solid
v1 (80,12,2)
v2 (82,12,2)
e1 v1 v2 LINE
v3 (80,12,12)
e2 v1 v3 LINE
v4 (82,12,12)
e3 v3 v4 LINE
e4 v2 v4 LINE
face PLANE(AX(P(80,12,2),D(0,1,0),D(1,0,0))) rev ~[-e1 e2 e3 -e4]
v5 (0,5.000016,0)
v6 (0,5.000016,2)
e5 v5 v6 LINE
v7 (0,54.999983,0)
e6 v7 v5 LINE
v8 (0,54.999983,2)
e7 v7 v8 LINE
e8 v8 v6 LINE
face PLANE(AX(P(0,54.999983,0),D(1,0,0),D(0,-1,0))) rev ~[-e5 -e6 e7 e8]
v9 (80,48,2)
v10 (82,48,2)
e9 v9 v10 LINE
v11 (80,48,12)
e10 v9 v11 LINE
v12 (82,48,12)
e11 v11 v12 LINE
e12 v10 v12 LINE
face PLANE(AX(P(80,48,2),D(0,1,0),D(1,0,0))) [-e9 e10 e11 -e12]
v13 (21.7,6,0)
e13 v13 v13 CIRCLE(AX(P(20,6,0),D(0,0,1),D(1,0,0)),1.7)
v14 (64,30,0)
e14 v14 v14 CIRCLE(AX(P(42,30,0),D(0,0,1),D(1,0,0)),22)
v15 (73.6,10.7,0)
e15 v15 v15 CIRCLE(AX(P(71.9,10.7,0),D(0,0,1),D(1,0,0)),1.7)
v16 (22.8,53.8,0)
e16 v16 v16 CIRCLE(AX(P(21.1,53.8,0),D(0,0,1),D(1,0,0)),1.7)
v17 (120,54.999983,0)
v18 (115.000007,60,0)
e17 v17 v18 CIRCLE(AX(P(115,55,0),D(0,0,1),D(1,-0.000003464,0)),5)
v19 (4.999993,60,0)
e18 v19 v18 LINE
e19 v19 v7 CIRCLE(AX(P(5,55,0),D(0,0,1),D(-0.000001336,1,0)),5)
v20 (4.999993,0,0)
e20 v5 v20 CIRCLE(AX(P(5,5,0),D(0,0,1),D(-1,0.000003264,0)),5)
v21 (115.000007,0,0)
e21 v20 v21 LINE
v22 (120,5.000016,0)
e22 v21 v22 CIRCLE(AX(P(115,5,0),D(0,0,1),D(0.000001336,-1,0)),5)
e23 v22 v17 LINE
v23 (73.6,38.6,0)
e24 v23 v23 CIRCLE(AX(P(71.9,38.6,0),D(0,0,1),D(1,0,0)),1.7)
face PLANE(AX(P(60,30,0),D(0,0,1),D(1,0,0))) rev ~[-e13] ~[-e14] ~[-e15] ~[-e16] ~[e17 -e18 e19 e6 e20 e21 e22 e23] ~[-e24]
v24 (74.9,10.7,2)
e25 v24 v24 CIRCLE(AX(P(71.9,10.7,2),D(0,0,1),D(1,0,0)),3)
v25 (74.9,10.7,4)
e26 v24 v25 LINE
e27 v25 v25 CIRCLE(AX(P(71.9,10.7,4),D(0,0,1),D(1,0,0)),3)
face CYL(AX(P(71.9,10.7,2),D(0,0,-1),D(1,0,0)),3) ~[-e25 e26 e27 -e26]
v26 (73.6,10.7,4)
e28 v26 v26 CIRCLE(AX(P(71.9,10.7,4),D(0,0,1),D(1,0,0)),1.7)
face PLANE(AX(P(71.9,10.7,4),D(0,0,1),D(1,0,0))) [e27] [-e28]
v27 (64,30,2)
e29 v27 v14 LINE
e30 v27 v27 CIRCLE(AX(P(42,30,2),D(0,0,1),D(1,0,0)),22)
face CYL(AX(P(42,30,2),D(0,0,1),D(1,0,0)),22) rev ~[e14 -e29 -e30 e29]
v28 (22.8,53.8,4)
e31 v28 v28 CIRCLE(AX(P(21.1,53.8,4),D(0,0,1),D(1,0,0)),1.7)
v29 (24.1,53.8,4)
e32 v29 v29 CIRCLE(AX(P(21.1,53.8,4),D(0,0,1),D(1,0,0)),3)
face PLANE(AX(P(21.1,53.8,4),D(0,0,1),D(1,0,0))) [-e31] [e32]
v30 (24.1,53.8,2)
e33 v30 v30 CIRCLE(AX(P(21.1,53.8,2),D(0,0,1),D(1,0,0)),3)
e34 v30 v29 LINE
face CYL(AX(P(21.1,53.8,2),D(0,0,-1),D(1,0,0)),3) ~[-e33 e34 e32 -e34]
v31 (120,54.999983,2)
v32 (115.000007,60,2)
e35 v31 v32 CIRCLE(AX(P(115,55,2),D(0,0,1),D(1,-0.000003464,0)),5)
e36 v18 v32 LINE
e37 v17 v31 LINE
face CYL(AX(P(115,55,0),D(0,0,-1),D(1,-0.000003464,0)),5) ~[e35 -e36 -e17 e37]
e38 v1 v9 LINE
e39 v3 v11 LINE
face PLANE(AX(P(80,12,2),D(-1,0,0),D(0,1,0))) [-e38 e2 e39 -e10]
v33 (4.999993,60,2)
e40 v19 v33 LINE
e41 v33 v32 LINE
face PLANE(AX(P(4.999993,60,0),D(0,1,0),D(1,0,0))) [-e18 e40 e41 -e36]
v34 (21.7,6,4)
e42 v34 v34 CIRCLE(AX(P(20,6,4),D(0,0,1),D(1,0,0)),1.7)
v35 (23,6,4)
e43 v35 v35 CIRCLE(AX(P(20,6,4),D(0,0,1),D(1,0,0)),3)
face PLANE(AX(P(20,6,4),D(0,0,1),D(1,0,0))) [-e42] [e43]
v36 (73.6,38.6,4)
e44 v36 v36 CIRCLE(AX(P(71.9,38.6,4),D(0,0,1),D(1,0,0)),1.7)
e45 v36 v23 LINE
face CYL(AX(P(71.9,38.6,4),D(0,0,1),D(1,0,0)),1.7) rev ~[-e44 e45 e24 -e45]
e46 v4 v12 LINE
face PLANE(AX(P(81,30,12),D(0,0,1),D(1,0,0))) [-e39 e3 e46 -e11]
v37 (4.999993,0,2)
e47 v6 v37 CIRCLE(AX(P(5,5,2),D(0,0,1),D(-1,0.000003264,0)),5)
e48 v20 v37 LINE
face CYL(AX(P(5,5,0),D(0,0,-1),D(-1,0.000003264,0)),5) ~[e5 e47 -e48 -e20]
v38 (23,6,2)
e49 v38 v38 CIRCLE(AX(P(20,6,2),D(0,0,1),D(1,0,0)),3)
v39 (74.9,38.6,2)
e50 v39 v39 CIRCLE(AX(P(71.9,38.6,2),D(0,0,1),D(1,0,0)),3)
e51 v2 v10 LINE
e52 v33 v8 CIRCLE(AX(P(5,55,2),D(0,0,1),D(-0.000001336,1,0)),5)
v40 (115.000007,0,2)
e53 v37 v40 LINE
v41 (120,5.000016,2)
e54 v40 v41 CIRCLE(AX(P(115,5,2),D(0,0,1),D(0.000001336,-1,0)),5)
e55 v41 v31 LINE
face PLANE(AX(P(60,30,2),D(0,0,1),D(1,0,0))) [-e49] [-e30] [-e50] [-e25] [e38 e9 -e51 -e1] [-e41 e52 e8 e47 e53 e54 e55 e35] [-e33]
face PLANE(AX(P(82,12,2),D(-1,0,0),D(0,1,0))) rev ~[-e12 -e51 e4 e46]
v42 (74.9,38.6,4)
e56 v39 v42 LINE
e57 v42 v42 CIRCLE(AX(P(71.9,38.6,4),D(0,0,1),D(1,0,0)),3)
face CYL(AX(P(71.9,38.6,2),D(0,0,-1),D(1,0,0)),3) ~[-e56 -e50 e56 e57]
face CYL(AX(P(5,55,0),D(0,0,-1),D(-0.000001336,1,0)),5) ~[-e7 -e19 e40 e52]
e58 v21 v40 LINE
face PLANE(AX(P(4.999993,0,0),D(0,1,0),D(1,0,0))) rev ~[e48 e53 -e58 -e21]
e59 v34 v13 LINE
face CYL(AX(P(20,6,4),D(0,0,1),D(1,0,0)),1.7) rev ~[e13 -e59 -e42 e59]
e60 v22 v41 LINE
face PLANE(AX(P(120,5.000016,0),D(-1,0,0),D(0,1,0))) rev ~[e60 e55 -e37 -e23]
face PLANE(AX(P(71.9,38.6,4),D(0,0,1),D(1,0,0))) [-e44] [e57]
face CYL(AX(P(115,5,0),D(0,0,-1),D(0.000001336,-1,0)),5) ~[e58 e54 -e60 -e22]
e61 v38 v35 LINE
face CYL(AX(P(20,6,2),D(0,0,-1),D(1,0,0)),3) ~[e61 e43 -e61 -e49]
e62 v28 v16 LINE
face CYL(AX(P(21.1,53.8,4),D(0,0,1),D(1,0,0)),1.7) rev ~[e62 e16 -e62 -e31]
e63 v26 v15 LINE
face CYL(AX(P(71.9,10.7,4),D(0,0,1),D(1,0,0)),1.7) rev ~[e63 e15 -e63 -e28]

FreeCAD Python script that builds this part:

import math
import FreeCAD as App
import Part
import Sketcher
from FreeCAD import Vector


def add_polygon(sketch, points):
    """Adds a closed chain of lines whose ends are joined by coincident constraints."""
    first, n = sketch.GeometryCount, len(points)
    for a, b in zip(points, points[1:] + points[:1]):
        sketch.addGeometry(Part.LineSegment(App.Vector(*a, 0), App.Vector(*b, 0)), False)
    for i in range(n):
        sketch.addConstraint(Sketcher.Constraint("Coincident", first + i, 2, first + (i + 1) % n, 1))

doc = App.newDocument("Part")
body = doc.addObject("PartDesign::Body", "Body")

sketch1 = doc.addObject("Sketcher::SketchObject", "Sketch")
body.addObject(sketch1)
sketch1.AttachmentSupport = (doc.XY_Plane, [""])
sketch1.MapMode = "FlatFace"
sketch1.addGeometry(Part.LineSegment(Vector(5, 0, 0), Vector(115, 0, 0)), False)
sketch1.addGeometry(Part.ArcOfCircle(Part.Circle(Vector(115, 5, 0), Vector(0, 0, 1), 5), math.radians(-90), math.radians(0)), False)
sketch1.addGeometry(Part.LineSegment(Vector(120, 5, 0), Vector(120, 55, 0)), False)
sketch1.addGeometry(Part.ArcOfCircle(Part.Circle(Vector(115, 55, 0), Vector(0, 0, 1), 5), math.radians(0), math.radians(90)), False)
sketch1.addGeometry(Part.LineSegment(Vector(115, 60, 0), Vector(5, 60, 0)), False)
sketch1.addGeometry(Part.ArcOfCircle(Part.Circle(Vector(5, 55, 0), Vector(0, 0, 1), 5), math.radians(90), math.radians(180)), False)
sketch1.addGeometry(Part.LineSegment(Vector(0, 55, 0), Vector(0, 5, 0)), False)
sketch1.addGeometry(Part.ArcOfCircle(Part.Circle(Vector(5, 5, 0), Vector(0, 0, 1), 5), math.radians(180), math.radians(270)), False)
sketch1.addConstraint(Sketcher.Constraint("Tangent", 0, 2, 1, 1))
sketch1.addConstraint(Sketcher.Constraint("Coincident", 1, 2, 2, 1))
sketch1.addConstraint(Sketcher.Constraint("Coincident", 2, 2, 3, 1))
sketch1.addConstraint(Sketcher.Constraint("Tangent", 3, 2, 4, 1))
sketch1.addConstraint(Sketcher.Constraint("Tangent", 4, 2, 5, 1))
sketch1.addConstraint(Sketcher.Constraint("Coincident", 5, 2, 6, 1))
sketch1.addConstraint(Sketcher.Constraint("Coincident", 6, 2, 7, 1))
sketch1.addConstraint(Sketcher.Constraint("Tangent", 7, 2, 0, 1))
sketch1.addConstraint(Sketcher.Constraint("Horizontal", 0))
sketch1.addConstraint(Sketcher.Constraint("Vertical", 2))
sketch1.addConstraint(Sketcher.Constraint("Horizontal", 4))
sketch1.addConstraint(Sketcher.Constraint("Vertical", 6))
sketch1.addConstraint(Sketcher.Constraint("Equal", 1, 3))
sketch1.addConstraint(Sketcher.Constraint("Equal", 3, 5))
sketch1.addConstraint(Sketcher.Constraint("Equal", 5, 7))
sketch1.addConstraint(Sketcher.Constraint("PointOnObject", 0, 2, -1))
sketch1.addConstraint(Sketcher.Constraint("PointOnObject", 5, 2, -2))
sketch1.addConstraint(Sketcher.Constraint("Horizontal", 2, 2, 5, 2))
sketch1.addConstraint(Sketcher.Constraint("Horizontal", 1, 2, 6, 2))
sketch1.addConstraint(Sketcher.Constraint("Radius", 1, 5.0))
sketch1.addConstraint(Sketcher.Constraint("DistanceX", -1, 1, 1, 3, 115.0))
sketch1.addConstraint(Sketcher.Constraint("DistanceY", -1, 1, 3, 3, 55.0))
sketch1.addConstraint(Sketcher.Constraint("DistanceY", 2, 1, 2, 2, 49.999967))
sketch1.addConstraint(Sketcher.Constraint("DistanceY", -1, 1, 1, 2, 5.000016))
pad1 = doc.addObject("PartDesign::Pad", "Pad")
body.addObject(pad1)
pad1.Profile = sketch1
pad1.Length = 2

sketch2 = doc.addObject("Sketcher::SketchObject", "Sketch001")
body.addObject(sketch2)
sketch2.AttachmentSupport = (doc.XY_Plane, [""])
sketch2.MapMode = "FlatFace"
sketch2.AttachmentOffset = App.Placement(Vector(0, 0, 2), App.Rotation())
sketch2.addGeometry(Part.Circle(Vector(20, 6, 0), Vector(0, 0, 1), 3), False)
sketch2.addGeometry(Part.Circle(Vector(71.9, 10.7, 0), Vector(0, 0, 1), 3), False)
sketch2.addGeometry(Part.Circle(Vector(71.9, 38.6, 0), Vector(0, 0, 1), 3), False)
sketch2.addGeometry(Part.Circle(Vector(21.1, 53.8, 0), Vector(0, 0, 1), 3), False)
sketch2.addConstraint(Sketcher.Constraint("Equal", 0, 1))
sketch2.addConstraint(Sketcher.Constraint("Equal", 1, 2))
sketch2.addConstraint(Sketcher.Constraint("Equal", 2, 3))
sketch2.addConstraint(Sketcher.Constraint("Vertical", 1, 3, 2, 3))
sketch2.addConstraint(Sketcher.Constraint("Diameter", 0, 6.0))
sketch2.addConstraint(Sketcher.Constraint("DistanceX", -1, 1, 0, 3, 20.0))
sketch2.addConstraint(Sketcher.Constraint("DistanceY", -1, 1, 0, 3, 6.0))
sketch2.addConstraint(Sketcher.Constraint("DistanceX", -1, 1, 1, 3, 71.9))
sketch2.addConstraint(Sketcher.Constraint("DistanceY", -1, 1, 1, 3, 10.7))
sketch2.addConstraint(Sketcher.Constraint("DistanceY", -1, 1, 2, 3, 38.6))
sketch2.addConstraint(Sketcher.Constraint("DistanceX", -1, 1, 3, 3, 21.1))
sketch2.addConstraint(Sketcher.Constraint("DistanceY", -1, 1, 3, 3, 53.8))
pad2 = doc.addObject("PartDesign::Pad", "Pad001")
body.addObject(pad2)
pad2.Profile = sketch2
pad2.Length = 2

sketch3 = doc.addObject("Sketcher::SketchObject", "Sketch002")
body.addObject(sketch3)
sketch3.AttachmentSupport = (doc.XY_Plane, [""])
sketch3.MapMode = "FlatFace"
sketch3.AttachmentOffset = App.Placement(Vector(0, 0, 4), App.Rotation())
sketch3.addGeometry(Part.Circle(Vector(20, 6, 0), Vector(0, 0, 1), 1.7), False)
sketch3.addGeometry(Part.Circle(Vector(71.9, 10.7, 0), Vector(0, 0, 1), 1.7), False)
sketch3.addGeometry(Part.Circle(Vector(71.9, 38.6, 0), Vector(0, 0, 1), 1.7), False)
sketch3.addGeometry(Part.Circle(Vector(21.1, 53.8, 0), Vector(0, 0, 1), 1.7), False)
sketch3.addConstraint(Sketcher.Constraint("Equal", 0, 1))
sketch3.addConstraint(Sketcher.Constraint("Equal", 1, 2))
sketch3.addConstraint(Sketcher.Constraint("Equal", 2, 3))
sketch3.addConstraint(Sketcher.Constraint("Vertical", 1, 3, 2, 3))
sketch3.addConstraint(Sketcher.Constraint("Diameter", 0, 3.4))
sketch3.addConstraint(Sketcher.Constraint("DistanceX", -1, 1, 0, 3, 20.0))
sketch3.addConstraint(Sketcher.Constraint("DistanceY", -1, 1, 0, 3, 6.0))
sketch3.addConstraint(Sketcher.Constraint("DistanceX", -1, 1, 1, 3, 71.9))
sketch3.addConstraint(Sketcher.Constraint("DistanceY", -1, 1, 1, 3, 10.7))
sketch3.addConstraint(Sketcher.Constraint("DistanceY", -1, 1, 2, 3, 38.6))
sketch3.addConstraint(Sketcher.Constraint("DistanceX", -1, 1, 3, 3, 21.1))
sketch3.addConstraint(Sketcher.Constraint("DistanceY", -1, 1, 3, 3, 53.8))
pocket1 = doc.addObject("PartDesign::Pocket", "Pocket")
body.addObject(pocket1)
pocket1.Profile = sketch3
pocket1.Length = 5

sketch4 = doc.addObject("Sketcher::SketchObject", "Sketch003")
body.addObject(sketch4)
sketch4.AttachmentSupport = (doc.XY_Plane, [""])
sketch4.MapMode = "FlatFace"
sketch4.AttachmentOffset = App.Placement(Vector(0, 0, 2), App.Rotation())
add_polygon(sketch4, [(80, 48), (80, 12), (82, 12), (82, 48)])
sketch4.addConstraint(Sketcher.Constraint("Vertical", 0))
sketch4.addConstraint(Sketcher.Constraint("Horizontal", 1))
sketch4.addConstraint(Sketcher.Constraint("Vertical", 2))
sketch4.addConstraint(Sketcher.Constraint("Horizontal", 3))
sketch4.addConstraint(Sketcher.Constraint("DistanceX", 1, 1, 1, 2, 2.0))
sketch4.addConstraint(Sketcher.Constraint("DistanceY", 0, 2, 0, 1, 36.0))
sketch4.addConstraint(Sketcher.Constraint("DistanceX", -1, 1, 0, 2, 80.0))
sketch4.addConstraint(Sketcher.Constraint("DistanceY", -1, 1, 0, 2, 12.0))
pad3 = doc.addObject("PartDesign::Pad", "Pad002")
body.addObject(pad3)
pad3.Profile = sketch4
pad3.Length = 10

sketch5 = doc.addObject("Sketcher::SketchObject", "Sketch004")
body.addObject(sketch5)
sketch5.AttachmentSupport = (doc.XY_Plane, [""])
sketch5.MapMode = "FlatFace"
sketch5.AttachmentOffset = App.Placement(Vector(0, 0, 2), App.Rotation())
sketch5.addGeometry(Part.Circle(Vector(42, 30, 0), Vector(0, 0, 1), 22), False)
sketch5.addConstraint(Sketcher.Constraint("Diameter", 0, 44.0))
sketch5.addConstraint(Sketcher.Constraint("DistanceX", -1, 1, 0, 3, 42.0))
sketch5.addConstraint(Sketcher.Constraint("DistanceY", -1, 1, 0, 3, 30.0))
pocket2 = doc.addObject("PartDesign::Pocket", "Pocket001")
body.addObject(pocket2)
pocket2.Profile = sketch5
pocket2.Length = 5

doc.recompute()
